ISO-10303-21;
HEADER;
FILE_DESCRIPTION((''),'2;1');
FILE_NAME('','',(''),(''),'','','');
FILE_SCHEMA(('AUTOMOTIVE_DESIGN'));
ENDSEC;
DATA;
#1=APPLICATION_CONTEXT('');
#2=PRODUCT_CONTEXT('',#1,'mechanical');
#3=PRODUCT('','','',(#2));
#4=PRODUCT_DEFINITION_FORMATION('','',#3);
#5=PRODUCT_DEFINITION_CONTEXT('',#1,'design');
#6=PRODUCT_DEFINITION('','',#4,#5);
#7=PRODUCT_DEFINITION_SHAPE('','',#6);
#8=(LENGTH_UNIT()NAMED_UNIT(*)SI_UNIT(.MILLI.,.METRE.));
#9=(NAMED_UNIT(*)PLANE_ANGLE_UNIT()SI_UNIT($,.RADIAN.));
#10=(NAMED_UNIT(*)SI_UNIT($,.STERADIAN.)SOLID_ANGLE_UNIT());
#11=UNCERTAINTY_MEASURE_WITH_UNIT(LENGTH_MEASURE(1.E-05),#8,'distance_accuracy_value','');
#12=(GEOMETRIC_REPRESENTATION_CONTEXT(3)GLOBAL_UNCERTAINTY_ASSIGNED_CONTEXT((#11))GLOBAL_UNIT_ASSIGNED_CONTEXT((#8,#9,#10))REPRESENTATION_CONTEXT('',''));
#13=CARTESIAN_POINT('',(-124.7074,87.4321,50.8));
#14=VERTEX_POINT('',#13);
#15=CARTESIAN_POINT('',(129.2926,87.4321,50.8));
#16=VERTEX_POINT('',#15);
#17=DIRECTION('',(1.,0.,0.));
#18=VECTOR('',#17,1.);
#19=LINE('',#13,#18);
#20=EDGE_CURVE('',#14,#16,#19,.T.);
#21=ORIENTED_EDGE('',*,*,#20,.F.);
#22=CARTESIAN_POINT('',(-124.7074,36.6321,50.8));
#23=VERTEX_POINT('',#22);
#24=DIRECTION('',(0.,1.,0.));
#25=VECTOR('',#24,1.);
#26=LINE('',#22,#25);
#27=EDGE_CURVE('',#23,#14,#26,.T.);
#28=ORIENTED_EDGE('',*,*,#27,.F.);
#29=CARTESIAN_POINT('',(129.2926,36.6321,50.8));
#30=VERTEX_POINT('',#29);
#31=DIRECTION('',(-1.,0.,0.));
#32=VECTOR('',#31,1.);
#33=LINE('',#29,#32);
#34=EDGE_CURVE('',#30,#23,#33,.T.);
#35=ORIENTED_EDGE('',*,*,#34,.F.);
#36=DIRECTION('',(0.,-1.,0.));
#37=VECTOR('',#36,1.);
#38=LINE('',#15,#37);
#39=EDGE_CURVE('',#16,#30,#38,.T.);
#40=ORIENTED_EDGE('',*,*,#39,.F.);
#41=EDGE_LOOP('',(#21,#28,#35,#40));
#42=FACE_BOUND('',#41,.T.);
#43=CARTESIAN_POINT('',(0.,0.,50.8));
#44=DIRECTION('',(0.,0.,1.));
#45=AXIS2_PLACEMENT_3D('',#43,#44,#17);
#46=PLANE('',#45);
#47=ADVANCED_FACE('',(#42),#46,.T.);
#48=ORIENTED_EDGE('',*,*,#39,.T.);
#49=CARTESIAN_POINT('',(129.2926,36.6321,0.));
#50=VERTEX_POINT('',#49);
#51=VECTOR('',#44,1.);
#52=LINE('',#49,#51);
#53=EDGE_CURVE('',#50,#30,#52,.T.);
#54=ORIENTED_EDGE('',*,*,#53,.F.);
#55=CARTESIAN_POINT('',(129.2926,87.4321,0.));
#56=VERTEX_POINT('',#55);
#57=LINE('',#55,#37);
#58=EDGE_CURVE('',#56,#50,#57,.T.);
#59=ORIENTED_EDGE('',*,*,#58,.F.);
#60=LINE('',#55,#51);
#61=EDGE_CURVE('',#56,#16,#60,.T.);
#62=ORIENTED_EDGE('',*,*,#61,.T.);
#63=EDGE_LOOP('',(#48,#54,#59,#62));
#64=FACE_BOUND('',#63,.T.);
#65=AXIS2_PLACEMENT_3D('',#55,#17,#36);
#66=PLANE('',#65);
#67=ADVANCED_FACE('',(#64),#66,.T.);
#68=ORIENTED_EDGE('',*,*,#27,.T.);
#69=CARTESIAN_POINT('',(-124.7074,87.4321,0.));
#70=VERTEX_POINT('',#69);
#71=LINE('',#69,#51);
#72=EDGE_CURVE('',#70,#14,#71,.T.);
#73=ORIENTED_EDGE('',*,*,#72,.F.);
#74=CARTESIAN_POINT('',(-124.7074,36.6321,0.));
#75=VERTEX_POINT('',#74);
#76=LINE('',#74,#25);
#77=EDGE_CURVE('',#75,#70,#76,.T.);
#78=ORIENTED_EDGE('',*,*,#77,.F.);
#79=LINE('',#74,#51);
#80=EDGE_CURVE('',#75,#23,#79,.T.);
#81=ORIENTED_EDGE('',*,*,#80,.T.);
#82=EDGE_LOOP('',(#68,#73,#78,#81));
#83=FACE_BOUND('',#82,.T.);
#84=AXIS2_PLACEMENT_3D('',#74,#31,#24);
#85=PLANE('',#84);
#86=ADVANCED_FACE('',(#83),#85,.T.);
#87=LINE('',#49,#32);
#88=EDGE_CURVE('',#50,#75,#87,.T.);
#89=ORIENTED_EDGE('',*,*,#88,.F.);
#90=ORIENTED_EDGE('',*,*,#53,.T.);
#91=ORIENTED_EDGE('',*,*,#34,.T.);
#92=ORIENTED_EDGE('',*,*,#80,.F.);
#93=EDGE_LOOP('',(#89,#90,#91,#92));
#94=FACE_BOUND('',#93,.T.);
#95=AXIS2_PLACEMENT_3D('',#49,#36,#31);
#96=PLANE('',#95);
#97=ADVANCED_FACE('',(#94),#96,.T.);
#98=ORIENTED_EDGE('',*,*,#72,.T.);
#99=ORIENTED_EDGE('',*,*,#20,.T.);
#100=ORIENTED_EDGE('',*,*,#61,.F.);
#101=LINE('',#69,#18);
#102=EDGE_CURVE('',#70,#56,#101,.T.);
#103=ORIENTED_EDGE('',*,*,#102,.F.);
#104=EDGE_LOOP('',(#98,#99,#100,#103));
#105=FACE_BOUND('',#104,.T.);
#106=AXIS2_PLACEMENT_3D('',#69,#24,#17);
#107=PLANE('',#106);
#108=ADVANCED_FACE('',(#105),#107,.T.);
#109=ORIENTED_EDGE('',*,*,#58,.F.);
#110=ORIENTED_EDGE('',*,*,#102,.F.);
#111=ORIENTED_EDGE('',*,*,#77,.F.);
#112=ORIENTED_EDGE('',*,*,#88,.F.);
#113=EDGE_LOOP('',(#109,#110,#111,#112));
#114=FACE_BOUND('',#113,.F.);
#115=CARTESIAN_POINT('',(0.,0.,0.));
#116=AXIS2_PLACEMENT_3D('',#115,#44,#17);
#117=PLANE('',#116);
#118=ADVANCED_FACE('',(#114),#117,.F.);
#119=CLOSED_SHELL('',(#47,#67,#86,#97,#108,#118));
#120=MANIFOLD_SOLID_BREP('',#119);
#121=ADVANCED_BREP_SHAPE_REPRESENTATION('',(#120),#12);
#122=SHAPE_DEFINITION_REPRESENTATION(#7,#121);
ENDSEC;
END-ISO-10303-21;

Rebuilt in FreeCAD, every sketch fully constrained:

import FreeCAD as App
import Part
import Sketcher

V = App.Vector
Q = App.Units.Quantity

doc = App.newDocument("Part")
body = doc.addObject("PartDesign::Body", "Body")

sketch1 = body.newObject("Sketcher::SketchObject", "Sketch")
sketch1.AttachmentSupport = (doc.getObject("XY_Plane"), [""])
sketch1.MapMode = "FlatFace"
sketch1.addGeometry([
    Part.LineSegment(V(129, 87, 0), V(-125, 87, 0)),
    Part.LineSegment(V(-125, 87, 0), V(-125, 37, 0)),
    Part.LineSegment(V(-125, 37, 0), V(129, 37, 0)),
    Part.LineSegment(V(129, 37, 0), V(129, 87, 0)),
], False)
sketch1.addConstraint([
    Sketcher.Constraint("Coincident", 0, 2, 1, 1),
    Sketcher.Constraint("Coincident", 1, 2, 2, 1),
    Sketcher.Constraint("Coincident", 2, 2, 3, 1),
    Sketcher.Constraint("Coincident", 3, 2, 0, 1),
    Sketcher.Constraint("Horizontal", 0),
    Sketcher.Constraint("Vertical", 1),
    Sketcher.Constraint("Horizontal", 2),
    Sketcher.Constraint("Vertical", 3),
    Sketcher.Constraint("DistanceX", 0, 2, 0, 1, Q("10 in")),
    Sketcher.Constraint("DistanceY", 1, 2, 1, 1, Q("2 in")),
    Sketcher.Constraint("DistanceY", -1, 1, 0, 2, Q("3.4422 in")),
    Sketcher.Constraint("DistanceX", 0, 2, -1, 1, 124.7074),
])
pad1 = body.newObject("PartDesign::Pad", "Pad")
pad1.Profile = sketch1
pad1.Length = Q("2 in")

doc.recompute()
